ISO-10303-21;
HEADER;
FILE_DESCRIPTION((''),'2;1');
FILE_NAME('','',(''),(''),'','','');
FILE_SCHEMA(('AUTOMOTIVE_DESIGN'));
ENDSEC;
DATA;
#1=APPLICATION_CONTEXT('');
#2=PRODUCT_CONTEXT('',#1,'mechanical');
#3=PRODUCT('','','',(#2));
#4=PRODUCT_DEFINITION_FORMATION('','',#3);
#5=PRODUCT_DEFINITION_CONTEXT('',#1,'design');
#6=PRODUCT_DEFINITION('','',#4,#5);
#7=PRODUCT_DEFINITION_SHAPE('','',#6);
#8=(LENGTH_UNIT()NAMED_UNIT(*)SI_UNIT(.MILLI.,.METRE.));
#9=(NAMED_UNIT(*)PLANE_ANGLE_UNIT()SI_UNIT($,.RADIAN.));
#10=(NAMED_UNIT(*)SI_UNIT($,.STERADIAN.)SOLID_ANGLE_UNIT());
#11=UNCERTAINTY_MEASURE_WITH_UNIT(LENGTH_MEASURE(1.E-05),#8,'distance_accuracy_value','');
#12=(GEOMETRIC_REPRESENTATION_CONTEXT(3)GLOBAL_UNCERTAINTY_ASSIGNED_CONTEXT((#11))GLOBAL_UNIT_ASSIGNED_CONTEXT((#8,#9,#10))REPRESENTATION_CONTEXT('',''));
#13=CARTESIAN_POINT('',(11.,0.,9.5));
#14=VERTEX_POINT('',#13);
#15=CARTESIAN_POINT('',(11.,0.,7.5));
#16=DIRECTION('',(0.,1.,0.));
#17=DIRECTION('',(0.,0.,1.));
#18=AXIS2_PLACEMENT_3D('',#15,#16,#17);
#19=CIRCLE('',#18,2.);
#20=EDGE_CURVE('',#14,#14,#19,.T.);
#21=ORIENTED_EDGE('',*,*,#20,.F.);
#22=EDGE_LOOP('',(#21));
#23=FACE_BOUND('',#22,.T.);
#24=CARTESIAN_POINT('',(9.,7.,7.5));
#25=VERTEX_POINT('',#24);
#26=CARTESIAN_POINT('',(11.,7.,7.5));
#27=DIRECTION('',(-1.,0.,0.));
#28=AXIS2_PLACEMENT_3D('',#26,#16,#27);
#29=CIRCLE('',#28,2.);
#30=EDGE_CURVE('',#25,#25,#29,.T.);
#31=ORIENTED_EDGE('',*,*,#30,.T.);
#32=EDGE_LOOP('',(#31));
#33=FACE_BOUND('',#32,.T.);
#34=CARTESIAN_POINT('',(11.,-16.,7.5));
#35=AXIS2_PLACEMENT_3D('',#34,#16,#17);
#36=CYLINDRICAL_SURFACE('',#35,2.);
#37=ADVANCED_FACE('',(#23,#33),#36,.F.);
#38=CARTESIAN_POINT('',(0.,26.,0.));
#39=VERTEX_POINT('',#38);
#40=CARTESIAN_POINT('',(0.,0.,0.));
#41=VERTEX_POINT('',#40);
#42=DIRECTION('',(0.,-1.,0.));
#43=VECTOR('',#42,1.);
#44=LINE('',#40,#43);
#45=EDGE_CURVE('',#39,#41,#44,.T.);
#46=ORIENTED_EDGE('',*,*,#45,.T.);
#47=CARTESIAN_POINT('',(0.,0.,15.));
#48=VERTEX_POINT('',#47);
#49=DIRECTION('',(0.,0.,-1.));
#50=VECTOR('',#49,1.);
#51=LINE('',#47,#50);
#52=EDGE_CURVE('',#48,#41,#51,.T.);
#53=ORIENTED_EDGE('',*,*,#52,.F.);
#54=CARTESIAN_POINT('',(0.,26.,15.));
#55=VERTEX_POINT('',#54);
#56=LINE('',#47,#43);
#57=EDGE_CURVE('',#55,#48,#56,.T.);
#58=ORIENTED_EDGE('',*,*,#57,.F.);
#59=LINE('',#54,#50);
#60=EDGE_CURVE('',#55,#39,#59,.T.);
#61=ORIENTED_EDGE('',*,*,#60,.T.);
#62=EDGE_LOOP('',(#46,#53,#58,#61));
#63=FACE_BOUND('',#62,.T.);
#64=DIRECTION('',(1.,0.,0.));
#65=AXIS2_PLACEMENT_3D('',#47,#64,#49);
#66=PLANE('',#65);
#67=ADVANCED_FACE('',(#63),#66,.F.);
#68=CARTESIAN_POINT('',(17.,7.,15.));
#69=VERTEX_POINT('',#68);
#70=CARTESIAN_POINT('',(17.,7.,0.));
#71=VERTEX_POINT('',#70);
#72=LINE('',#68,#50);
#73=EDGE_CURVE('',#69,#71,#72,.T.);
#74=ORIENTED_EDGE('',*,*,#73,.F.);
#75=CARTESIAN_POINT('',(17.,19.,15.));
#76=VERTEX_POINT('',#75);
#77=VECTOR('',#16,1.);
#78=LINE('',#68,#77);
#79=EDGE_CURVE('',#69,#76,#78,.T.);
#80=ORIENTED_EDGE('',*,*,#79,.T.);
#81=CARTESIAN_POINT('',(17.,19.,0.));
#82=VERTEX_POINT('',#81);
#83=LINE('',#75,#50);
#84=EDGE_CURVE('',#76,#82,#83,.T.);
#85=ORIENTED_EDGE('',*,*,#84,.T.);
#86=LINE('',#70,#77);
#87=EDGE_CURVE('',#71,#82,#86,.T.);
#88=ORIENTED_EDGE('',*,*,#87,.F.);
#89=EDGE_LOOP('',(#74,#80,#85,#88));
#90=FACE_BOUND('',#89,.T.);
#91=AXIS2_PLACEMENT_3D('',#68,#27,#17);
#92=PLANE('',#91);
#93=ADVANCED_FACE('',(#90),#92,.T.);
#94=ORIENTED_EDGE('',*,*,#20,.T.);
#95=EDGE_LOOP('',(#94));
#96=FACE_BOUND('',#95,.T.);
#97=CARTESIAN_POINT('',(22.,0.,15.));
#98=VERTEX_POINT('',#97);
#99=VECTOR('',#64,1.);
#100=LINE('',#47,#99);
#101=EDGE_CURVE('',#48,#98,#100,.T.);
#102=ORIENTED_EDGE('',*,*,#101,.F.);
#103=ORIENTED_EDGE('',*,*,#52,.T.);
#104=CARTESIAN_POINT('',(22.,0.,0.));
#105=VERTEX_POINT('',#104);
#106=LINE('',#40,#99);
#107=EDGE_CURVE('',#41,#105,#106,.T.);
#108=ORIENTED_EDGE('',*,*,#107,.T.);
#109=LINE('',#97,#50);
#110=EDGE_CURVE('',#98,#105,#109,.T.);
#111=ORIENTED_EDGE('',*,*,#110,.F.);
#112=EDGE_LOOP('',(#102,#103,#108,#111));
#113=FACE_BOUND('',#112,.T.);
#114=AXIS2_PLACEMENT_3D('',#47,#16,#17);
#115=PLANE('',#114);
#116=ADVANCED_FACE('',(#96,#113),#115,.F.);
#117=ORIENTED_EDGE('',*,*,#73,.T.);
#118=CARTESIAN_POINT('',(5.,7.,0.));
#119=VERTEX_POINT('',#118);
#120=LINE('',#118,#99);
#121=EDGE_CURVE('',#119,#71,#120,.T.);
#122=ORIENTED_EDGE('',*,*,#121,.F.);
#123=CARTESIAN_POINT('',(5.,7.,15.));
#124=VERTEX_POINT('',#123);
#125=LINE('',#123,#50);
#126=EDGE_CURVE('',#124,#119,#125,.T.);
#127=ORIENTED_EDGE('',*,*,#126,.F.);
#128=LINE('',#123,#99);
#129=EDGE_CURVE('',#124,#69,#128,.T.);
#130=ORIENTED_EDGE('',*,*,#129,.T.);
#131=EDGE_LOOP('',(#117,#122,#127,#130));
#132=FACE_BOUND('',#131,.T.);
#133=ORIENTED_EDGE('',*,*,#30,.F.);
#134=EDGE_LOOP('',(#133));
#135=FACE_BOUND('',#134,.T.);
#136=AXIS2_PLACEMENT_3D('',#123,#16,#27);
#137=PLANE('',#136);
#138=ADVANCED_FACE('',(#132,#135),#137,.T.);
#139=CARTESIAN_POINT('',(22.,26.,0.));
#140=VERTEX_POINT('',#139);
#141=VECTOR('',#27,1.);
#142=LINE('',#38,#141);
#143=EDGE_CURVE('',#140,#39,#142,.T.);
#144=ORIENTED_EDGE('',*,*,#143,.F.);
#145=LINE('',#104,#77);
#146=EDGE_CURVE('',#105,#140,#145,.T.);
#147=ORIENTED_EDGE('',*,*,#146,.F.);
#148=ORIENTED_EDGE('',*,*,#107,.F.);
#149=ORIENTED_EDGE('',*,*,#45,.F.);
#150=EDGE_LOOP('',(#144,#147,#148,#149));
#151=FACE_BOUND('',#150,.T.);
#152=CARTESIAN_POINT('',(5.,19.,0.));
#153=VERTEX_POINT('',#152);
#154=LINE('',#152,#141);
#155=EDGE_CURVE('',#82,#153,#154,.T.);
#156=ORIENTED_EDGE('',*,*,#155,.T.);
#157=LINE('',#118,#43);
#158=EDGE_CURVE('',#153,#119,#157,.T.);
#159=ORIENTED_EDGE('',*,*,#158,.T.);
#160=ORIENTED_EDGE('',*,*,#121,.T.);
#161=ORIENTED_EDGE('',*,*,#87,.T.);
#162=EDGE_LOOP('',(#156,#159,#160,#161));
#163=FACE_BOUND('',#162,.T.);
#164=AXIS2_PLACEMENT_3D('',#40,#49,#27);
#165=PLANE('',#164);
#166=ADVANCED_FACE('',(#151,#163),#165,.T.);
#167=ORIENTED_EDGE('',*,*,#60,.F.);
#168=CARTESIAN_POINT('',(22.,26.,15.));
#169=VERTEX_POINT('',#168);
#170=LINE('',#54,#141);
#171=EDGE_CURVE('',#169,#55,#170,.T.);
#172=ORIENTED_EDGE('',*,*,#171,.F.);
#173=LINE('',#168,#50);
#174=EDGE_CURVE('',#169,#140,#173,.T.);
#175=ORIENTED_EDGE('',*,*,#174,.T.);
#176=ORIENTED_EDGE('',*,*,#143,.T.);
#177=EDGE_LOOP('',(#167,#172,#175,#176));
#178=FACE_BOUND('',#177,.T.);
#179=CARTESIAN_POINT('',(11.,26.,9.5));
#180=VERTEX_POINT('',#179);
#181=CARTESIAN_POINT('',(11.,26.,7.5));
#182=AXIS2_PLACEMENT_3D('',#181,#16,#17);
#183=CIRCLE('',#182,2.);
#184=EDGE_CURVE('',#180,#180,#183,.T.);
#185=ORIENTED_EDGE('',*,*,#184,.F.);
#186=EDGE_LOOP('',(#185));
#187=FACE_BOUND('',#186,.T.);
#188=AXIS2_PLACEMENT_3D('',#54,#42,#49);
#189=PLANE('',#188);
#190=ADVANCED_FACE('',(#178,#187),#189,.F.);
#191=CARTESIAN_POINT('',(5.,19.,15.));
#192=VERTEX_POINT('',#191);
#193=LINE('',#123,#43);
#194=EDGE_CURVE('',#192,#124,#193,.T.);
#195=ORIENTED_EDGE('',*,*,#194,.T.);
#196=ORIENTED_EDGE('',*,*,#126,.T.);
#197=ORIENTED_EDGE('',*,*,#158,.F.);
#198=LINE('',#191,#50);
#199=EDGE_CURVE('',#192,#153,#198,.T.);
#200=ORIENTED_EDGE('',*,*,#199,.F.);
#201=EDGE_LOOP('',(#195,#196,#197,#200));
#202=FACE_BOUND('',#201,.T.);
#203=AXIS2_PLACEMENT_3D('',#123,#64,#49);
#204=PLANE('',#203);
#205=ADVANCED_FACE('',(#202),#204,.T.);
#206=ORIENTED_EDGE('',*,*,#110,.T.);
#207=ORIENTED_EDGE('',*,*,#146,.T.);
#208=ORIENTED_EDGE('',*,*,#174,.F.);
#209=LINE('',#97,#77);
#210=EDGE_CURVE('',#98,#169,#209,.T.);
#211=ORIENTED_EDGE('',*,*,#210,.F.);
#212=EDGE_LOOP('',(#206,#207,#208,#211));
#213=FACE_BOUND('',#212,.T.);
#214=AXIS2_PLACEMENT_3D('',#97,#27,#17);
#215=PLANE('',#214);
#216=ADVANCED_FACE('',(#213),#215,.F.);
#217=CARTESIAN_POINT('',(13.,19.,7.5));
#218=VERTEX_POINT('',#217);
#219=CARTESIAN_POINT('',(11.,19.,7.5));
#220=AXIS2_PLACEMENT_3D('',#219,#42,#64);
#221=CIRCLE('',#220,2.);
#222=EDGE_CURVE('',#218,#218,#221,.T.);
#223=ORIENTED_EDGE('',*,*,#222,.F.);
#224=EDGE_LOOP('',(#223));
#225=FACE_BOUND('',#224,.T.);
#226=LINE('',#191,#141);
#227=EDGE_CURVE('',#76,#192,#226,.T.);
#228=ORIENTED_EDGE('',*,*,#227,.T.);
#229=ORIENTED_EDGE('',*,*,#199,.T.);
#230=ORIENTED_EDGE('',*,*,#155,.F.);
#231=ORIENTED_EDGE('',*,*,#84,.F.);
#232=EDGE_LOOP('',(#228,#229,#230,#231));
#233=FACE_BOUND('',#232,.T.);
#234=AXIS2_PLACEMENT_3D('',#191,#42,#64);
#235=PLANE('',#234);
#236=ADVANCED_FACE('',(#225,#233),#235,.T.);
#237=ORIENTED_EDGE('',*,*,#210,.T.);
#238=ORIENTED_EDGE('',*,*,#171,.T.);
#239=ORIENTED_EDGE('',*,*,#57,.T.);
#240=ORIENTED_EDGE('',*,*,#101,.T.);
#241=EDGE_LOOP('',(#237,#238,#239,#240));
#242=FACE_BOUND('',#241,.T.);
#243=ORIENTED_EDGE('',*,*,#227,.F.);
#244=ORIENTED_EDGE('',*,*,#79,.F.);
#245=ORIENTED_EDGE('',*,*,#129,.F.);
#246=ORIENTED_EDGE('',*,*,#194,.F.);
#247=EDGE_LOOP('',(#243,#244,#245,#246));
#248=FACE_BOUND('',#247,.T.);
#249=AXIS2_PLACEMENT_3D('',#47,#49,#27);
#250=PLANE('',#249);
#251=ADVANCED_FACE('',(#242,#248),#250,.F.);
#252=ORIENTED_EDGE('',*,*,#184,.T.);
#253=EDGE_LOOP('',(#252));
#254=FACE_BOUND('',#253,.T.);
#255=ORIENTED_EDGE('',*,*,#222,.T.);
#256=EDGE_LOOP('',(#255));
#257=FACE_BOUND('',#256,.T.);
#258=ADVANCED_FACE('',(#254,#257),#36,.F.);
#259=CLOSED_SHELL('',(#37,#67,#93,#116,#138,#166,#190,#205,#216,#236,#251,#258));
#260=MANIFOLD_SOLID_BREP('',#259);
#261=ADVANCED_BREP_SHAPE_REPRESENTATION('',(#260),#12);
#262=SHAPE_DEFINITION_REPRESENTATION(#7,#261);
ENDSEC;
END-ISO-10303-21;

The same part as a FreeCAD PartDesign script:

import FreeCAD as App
import Part
import Sketcher

V = App.Vector
Q = App.Units.Quantity

doc = App.newDocument("Part")
body = doc.addObject("PartDesign::Body", "Body")

# Sketch on XY plane
sketch1 = body.newObject("Sketcher::SketchObject", "Sketch")
sketch1.AttachmentSupport = (doc.getObject("XY_Plane"), [""])
sketch1.MapMode = "FlatFace"
sketch1.addGeometry(Part.LineSegment(V(0, 26, 0), V(0, 0, 0)), False)
sketch1.addGeometry(Part.LineSegment(V(0, 0, 0), V(22, 0, 0)), False)
sketch1.addGeometry(Part.LineSegment(V(22, 0, 0), V(22, 26, 0)), False)
sketch1.addGeometry(Part.LineSegment(V(22, 26, 0), V(0, 26, 0)), False)
sketch1.addGeometry(Part.LineSegment(V(17, 7, 0), V(5, 7, 0)), False)
sketch1.addGeometry(Part.LineSegment(V(5, 7, 0), V(5, 19, 0)), False)
sketch1.addGeometry(Part.LineSegment(V(5, 19, 0), V(17, 19, 0)), False)
sketch1.addGeometry(Part.LineSegment(V(17, 19, 0), V(17, 7, 0)), False)
sketch1.addConstraint(Sketcher.Constraint("Coincident", 0, 2, 1, 1))
sketch1.addConstraint(Sketcher.Constraint("Coincident", 1, 2, 2, 1))
sketch1.addConstraint(Sketcher.Constraint("Coincident", 2, 2, 3, 1))
sketch1.addConstraint(Sketcher.Constraint("Coincident", 3, 2, 0, 1))
sketch1.addConstraint(Sketcher.Constraint("Coincident", 4, 2, 5, 1))
sketch1.addConstraint(Sketcher.Constraint("Coincident", 5, 2, 6, 1))
sketch1.addConstraint(Sketcher.Constraint("Coincident", 6, 2, 7, 1))
sketch1.addConstraint(Sketcher.Constraint("Coincident", 7, 2, 4, 1))
sketch1.addConstraint(Sketcher.Constraint("Vertical", 0))
sketch1.addConstraint(Sketcher.Constraint("Horizontal", 1))
sketch1.addConstraint(Sketcher.Constraint("Vertical", 2))
sketch1.addConstraint(Sketcher.Constraint("Horizontal", 3))
sketch1.addConstraint(Sketcher.Constraint("Horizontal", 4))
sketch1.addConstraint(Sketcher.Constraint("Vertical", 5))
sketch1.addConstraint(Sketcher.Constraint("Horizontal", 6))
sketch1.addConstraint(Sketcher.Constraint("Vertical", 7))
sketch1.addConstraint(Sketcher.Constraint("Coincident", 0, 2, -1, 1))
sketch1.addConstraint(Sketcher.Constraint("Equal", 6, 5))
sketch1.addConstraint(Sketcher.Constraint("DistanceX", 1, 1, 1, 2, Q("22 mm")))
sketch1.addConstraint(Sketcher.Constraint("DistanceX", 4, 2, 4, 1, Q("12 mm")))
sketch1.addConstraint(Sketcher.Constraint("DistanceY", 0, 2, 0, 1, Q("26 mm")))
sketch1.addConstraint(Sketcher.Constraint("DistanceX", -1, 1, 4, 2, Q("5 mm")))
sketch1.addConstraint(Sketcher.Constraint("DistanceY", -1, 1, 4, 2, Q("7 mm")))
pad1 = body.newObject("PartDesign::Pad", "Pad")
pad1.Profile = sketch1
pad1.Length = 15

# Sketch on XZ plane
sketch2 = body.newObject("Sketcher::SketchObject", "Sketch001")
sketch2.AttachmentSupport = (doc.getObject("XZ_Plane"), [""])
sketch2.MapMode = "FlatFace"
sketch2.AttachmentOffset = App.Placement(V(0, 0, -26), App.Rotation())
sketch2.addGeometry(Part.Circle(V(11, 7.5, 0), V(0, 0, 1), 2), False)
sketch2.addConstraint(Sketcher.Constraint("Diameter", 0, Q("4 mm")))
sketch2.addConstraint(Sketcher.Constraint("DistanceX", -1, 1, 0, 3, Q("11 mm")))
sketch2.addConstraint(Sketcher.Constraint("DistanceY", -1, 1, 0, 3, Q("7.5 mm")))
pocket1 = body.newObject("PartDesign::Pocket", "Pocket")
pocket1.Profile = sketch2
pocket1.Length = 42
pocket1.Reversed = True

doc.recompute()
